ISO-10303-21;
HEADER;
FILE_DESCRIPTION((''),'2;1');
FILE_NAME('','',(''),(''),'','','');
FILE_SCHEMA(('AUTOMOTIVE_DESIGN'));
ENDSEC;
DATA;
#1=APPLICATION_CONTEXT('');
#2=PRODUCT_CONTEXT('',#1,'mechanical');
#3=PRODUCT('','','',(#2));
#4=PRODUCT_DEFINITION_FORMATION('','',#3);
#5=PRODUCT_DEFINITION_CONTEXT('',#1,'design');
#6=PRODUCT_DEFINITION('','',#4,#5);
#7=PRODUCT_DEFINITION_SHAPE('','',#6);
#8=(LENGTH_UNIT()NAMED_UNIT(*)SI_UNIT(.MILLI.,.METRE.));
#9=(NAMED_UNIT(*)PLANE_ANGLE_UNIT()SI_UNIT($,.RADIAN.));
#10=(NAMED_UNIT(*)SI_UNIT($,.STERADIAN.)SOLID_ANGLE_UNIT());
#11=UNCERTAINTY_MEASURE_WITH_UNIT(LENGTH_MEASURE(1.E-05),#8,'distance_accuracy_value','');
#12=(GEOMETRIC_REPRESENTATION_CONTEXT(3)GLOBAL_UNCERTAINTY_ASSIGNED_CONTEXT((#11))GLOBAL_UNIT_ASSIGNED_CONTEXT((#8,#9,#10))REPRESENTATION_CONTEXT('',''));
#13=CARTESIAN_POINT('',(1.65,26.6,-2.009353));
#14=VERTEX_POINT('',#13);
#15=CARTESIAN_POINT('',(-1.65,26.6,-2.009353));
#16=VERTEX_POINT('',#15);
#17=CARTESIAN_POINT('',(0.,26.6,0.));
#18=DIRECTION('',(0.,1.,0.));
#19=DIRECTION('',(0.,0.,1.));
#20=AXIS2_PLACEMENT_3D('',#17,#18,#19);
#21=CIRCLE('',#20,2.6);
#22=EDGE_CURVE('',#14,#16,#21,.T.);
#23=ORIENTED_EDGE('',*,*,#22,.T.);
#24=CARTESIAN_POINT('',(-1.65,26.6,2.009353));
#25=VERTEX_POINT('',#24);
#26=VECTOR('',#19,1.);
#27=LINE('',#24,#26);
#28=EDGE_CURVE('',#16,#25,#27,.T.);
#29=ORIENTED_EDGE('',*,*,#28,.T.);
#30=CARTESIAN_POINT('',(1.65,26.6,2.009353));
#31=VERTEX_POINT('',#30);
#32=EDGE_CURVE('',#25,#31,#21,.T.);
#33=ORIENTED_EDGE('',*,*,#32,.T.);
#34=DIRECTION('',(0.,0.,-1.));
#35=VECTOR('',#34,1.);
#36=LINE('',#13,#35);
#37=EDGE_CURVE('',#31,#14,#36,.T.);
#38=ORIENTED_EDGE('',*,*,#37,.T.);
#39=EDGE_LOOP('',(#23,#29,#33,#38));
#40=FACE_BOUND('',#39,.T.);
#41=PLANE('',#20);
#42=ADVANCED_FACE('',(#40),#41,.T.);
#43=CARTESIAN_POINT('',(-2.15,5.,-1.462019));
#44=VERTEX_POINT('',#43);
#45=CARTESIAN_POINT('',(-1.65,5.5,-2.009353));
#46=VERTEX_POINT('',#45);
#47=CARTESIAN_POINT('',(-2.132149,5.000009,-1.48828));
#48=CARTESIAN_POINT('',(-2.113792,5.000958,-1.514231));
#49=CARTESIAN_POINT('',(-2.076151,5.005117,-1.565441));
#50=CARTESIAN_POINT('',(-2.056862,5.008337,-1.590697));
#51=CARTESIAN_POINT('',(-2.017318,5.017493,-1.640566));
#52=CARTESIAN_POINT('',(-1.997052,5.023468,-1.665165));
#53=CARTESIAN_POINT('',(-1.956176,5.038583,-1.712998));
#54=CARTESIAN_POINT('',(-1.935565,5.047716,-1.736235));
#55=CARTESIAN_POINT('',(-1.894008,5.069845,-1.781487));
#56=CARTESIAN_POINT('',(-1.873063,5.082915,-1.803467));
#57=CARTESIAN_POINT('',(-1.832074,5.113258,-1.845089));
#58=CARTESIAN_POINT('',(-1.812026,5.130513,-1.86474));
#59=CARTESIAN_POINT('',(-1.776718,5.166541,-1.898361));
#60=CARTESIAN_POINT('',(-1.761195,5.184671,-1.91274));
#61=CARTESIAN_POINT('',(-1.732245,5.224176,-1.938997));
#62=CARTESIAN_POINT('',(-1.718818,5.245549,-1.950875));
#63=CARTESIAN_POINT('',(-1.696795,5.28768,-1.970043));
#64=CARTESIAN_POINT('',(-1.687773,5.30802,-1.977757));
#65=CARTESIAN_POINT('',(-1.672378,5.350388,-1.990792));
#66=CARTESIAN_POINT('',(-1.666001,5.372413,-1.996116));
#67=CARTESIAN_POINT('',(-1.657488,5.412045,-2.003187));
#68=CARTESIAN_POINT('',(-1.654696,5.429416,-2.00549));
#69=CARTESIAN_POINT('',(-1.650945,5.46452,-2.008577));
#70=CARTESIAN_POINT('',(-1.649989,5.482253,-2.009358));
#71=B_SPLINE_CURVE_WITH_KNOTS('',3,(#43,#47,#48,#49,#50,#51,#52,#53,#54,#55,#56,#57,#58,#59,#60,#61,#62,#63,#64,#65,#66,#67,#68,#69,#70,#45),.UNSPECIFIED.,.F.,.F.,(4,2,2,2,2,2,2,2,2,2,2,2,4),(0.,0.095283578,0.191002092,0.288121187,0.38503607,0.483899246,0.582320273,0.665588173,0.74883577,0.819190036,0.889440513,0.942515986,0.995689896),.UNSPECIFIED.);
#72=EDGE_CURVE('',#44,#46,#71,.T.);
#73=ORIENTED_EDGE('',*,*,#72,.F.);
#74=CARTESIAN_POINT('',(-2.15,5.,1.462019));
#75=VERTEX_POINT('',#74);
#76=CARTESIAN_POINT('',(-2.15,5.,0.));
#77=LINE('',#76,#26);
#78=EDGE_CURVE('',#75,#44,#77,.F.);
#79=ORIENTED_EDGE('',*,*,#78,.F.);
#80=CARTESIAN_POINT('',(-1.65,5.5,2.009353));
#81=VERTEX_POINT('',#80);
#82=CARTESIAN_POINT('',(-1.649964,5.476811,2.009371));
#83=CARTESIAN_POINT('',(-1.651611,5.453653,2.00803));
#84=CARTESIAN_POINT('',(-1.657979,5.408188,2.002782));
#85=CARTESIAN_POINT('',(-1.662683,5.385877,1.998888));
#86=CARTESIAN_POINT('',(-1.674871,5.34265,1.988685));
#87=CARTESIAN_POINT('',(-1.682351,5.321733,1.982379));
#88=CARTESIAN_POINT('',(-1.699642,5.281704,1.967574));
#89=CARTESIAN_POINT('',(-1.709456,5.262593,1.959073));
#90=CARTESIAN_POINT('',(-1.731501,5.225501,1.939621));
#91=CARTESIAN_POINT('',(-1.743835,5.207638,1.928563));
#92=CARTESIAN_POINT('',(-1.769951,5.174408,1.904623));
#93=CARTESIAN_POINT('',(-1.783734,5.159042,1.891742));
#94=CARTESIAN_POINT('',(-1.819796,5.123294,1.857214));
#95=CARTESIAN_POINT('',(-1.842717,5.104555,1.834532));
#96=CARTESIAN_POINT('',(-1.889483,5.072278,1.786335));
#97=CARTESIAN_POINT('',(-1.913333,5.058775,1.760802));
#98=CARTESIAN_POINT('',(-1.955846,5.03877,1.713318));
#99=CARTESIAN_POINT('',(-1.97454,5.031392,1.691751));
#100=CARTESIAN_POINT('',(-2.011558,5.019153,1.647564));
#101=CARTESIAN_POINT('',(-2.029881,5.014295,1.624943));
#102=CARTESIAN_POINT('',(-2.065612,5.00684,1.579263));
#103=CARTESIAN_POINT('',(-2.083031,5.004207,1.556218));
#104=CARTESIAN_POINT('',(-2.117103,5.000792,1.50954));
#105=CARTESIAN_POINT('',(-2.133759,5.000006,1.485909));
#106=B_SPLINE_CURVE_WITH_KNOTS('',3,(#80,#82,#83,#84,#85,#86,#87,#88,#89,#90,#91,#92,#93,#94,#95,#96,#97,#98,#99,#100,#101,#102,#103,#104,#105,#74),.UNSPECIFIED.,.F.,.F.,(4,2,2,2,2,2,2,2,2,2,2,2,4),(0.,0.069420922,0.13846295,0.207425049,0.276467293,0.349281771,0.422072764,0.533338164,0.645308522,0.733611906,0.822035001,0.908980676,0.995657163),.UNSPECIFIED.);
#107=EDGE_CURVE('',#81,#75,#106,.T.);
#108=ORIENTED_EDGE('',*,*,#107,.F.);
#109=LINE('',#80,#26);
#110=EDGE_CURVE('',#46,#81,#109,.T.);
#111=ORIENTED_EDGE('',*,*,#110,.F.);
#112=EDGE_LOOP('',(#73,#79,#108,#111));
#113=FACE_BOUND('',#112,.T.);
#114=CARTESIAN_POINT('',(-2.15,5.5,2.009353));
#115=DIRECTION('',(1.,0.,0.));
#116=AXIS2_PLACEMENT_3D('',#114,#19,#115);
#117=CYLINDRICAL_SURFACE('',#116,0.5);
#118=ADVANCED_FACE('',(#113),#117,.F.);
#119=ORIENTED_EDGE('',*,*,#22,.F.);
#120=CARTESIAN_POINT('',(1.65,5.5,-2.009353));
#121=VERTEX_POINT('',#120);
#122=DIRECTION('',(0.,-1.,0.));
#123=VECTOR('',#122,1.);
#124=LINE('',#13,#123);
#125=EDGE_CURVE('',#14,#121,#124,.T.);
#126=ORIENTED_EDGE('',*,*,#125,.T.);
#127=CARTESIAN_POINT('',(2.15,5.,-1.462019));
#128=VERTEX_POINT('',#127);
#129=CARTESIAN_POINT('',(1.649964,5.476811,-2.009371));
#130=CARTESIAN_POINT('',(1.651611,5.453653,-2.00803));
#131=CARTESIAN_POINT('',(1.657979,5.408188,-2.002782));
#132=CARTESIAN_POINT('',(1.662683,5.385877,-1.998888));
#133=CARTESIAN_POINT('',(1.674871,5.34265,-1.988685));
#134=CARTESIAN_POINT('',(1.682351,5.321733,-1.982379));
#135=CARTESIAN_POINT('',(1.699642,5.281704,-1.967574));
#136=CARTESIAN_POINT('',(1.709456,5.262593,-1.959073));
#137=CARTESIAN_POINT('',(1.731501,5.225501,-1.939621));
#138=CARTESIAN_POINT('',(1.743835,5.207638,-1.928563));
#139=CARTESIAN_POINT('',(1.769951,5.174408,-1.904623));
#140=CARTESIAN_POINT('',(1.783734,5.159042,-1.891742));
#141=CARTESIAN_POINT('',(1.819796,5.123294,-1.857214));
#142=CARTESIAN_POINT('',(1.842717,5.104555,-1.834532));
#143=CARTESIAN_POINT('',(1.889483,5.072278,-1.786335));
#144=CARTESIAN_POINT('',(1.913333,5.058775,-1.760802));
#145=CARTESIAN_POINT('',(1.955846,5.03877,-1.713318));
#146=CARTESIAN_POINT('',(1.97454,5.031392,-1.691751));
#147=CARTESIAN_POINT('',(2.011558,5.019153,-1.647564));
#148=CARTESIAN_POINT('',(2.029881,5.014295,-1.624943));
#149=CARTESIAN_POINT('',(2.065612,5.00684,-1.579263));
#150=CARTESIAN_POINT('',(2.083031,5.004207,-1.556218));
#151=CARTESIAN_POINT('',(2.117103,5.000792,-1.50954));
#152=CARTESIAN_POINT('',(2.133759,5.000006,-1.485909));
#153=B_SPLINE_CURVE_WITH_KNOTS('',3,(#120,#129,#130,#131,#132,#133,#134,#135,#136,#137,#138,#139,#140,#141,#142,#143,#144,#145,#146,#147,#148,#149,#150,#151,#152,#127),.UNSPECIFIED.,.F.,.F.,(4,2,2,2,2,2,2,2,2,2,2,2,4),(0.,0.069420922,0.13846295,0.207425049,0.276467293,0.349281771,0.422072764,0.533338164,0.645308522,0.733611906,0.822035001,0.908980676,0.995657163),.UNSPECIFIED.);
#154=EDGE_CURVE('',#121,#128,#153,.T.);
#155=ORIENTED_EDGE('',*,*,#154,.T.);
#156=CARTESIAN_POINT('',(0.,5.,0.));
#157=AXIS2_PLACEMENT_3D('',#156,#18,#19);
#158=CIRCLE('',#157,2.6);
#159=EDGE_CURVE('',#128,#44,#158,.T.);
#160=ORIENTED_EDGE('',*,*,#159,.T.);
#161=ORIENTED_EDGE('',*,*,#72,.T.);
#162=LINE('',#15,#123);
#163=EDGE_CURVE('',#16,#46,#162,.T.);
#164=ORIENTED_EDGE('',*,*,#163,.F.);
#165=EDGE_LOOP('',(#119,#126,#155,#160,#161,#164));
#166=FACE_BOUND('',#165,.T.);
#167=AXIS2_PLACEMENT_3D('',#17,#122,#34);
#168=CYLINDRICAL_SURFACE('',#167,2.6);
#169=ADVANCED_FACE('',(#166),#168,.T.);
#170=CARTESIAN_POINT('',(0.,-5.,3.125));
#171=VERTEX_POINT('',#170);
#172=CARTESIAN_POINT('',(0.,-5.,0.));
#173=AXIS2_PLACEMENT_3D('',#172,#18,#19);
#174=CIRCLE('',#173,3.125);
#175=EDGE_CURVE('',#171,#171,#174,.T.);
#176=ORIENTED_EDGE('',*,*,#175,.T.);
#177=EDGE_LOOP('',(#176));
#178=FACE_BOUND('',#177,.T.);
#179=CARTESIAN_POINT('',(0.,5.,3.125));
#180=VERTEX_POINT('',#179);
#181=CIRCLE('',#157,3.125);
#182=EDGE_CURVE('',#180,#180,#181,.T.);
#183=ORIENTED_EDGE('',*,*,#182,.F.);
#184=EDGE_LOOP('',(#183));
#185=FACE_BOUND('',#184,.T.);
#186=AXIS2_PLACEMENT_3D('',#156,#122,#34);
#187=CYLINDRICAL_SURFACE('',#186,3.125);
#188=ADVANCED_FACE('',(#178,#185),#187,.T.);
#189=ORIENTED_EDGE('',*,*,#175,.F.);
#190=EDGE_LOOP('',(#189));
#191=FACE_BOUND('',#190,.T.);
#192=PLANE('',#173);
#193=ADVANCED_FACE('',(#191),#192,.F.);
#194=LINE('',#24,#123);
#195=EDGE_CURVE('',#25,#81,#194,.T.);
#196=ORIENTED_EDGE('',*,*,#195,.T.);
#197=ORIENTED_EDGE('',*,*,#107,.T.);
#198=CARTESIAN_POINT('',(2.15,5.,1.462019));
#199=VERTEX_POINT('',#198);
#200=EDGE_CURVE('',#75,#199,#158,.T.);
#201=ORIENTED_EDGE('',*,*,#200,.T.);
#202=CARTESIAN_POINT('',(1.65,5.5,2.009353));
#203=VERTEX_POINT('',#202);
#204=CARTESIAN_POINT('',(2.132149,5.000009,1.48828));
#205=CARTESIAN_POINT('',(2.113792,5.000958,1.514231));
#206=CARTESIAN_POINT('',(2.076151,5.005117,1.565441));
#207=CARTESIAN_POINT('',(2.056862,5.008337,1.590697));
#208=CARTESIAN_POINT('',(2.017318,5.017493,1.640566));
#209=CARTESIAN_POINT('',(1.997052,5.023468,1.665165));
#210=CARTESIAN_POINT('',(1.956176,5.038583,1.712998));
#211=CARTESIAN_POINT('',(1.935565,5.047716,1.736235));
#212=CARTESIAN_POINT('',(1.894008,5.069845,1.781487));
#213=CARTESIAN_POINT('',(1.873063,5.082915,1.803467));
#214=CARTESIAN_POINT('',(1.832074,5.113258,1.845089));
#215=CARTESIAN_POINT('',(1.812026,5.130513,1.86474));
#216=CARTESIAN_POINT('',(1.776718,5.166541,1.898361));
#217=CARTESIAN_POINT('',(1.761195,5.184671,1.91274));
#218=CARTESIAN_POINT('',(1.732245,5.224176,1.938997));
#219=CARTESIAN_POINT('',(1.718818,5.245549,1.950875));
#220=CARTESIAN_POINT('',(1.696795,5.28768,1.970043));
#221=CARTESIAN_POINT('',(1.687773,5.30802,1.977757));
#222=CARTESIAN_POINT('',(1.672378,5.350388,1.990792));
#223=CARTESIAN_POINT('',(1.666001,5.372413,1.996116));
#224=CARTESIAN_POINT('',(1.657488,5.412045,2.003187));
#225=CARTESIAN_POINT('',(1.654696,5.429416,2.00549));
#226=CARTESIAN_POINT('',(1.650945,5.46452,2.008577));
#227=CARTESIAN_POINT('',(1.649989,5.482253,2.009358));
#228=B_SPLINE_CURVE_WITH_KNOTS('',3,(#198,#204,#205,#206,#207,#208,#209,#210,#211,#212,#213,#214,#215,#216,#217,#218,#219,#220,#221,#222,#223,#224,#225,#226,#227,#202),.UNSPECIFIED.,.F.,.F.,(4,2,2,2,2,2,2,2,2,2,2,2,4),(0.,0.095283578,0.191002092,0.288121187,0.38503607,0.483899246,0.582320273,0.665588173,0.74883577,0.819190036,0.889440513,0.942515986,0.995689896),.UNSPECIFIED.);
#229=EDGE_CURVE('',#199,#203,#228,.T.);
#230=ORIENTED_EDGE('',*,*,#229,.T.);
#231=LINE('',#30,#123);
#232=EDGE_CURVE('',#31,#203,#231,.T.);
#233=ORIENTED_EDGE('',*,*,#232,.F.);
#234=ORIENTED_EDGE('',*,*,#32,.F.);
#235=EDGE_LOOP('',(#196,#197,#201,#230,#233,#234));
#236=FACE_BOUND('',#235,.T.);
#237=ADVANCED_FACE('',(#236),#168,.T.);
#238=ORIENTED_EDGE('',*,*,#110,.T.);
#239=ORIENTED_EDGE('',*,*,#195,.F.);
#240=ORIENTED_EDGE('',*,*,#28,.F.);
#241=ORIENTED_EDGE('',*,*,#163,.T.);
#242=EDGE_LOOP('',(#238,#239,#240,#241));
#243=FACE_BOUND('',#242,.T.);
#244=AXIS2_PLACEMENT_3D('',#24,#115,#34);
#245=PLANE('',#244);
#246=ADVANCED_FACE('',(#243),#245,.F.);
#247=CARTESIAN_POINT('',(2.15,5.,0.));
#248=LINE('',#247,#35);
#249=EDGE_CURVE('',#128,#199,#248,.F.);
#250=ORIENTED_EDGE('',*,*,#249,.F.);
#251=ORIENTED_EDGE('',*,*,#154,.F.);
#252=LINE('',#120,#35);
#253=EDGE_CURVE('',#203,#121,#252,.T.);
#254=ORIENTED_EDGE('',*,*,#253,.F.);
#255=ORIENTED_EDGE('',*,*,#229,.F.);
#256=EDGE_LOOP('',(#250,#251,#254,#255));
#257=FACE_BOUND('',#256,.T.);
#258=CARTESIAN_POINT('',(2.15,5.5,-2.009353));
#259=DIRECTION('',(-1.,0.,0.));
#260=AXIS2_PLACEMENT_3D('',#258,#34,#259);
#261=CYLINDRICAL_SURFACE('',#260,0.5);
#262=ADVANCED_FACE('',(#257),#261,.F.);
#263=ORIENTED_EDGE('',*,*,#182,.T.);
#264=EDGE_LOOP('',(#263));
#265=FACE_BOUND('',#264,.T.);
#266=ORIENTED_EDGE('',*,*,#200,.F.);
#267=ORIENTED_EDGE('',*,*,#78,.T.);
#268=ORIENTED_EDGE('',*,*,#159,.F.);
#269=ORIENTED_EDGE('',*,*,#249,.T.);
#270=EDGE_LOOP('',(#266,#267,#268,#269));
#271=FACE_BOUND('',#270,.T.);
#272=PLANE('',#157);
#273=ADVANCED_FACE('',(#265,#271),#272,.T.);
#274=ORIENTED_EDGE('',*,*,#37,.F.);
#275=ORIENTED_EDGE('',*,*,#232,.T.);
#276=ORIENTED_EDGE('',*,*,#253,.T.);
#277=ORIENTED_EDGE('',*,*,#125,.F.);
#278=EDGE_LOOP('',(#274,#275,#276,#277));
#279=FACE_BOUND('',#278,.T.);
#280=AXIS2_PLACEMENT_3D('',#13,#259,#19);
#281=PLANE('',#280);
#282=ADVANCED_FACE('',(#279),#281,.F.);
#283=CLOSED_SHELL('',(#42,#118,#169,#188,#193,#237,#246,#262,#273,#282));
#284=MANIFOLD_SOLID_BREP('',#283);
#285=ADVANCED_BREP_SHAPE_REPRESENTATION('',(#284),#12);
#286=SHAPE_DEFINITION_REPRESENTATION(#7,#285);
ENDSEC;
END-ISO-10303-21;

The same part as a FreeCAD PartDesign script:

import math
import FreeCAD as App
import Part
import Sketcher
Q = App.Units.Quantity


def edges_at(feature, points):
    """Names of the edges that pass closest to the given points."""
    edges = feature.Shape.Edges
    near = lambda p: min(range(len(edges)), key=lambda i: edges[i].distToShape(Part.Vertex(*p))[0])
    return sorted({f"Edge{near(p) + 1}" for p in points})

doc = App.newDocument("Part")
body = doc.addObject("PartDesign::Body", "Body")

# Sketch on XZ plane
sketch1 = doc.addObject("Sketcher::SketchObject", "Sketch")
body.addObject(sketch1)
sketch1.AttachmentSupport = (doc.XZ_Plane, [""])
sketch1.MapMode = "FlatFace"
sketch1.addGeometry(Part.Circle(App.Vector(0, 0, 0), App.Vector(0, 0, 1), 3.1), False)
sketch1.addConstraint([
    Sketcher.Constraint("Coincident", 0, 3, -1, 1),
    Sketcher.Constraint("Diameter", 0, Q("6.25 mm")),
])
pad1 = doc.addObject("PartDesign::Pad", "Pad")
body.addObject(pad1)
pad1.Profile = sketch1
pad1.Length = 10
pad1.Midplane = True

# Sketch on XZ plane
sketch2 = doc.addObject("Sketcher::SketchObject", "Sketch001")
body.addObject(sketch2)
sketch2.AttachmentSupport = (doc.XZ_Plane, [""])
sketch2.MapMode = "FlatFace"
sketch2.AttachmentOffset = App.Placement(App.Vector(0, 0, -5), App.Rotation())
sketch2.addGeometry([
    Part.LineSegment(App.Vector(-1.6, -2, 0), App.Vector(-1.6, 2, 0)),
    Part.ArcOfCircle(Part.Circle(App.Vector(0, 0, 0), App.Vector(0, 0, 1), 2.6), math.radians(51), math.radians(129)),
    Part.LineSegment(App.Vector(1.6, 2, 0), App.Vector(1.6, -2, 0)),
    Part.ArcOfCircle(Part.Circle(App.Vector(0, 0, 0), App.Vector(0, 0, 1), 2.6), math.radians(-129), math.radians(-51)),
], False)
sketch2.addConstraint([
    Sketcher.Constraint("Coincident", 0, 2, 1, 2),
    Sketcher.Constraint("Coincident", 1, 1, 2, 1),
    Sketcher.Constraint("Coincident", 2, 2, 3, 2),
    Sketcher.Constraint("Coincident", 3, 1, 0, 1),
    Sketcher.Constraint("Vertical", 0),
    Sketcher.Constraint("Vertical", 2),
    Sketcher.Constraint("Coincident", 1, 3, -1, 1),
    Sketcher.Constraint("Coincident", 3, 3, -1, 1),
    Sketcher.Constraint("Equal", 1, 3),
    Sketcher.Constraint("Horizontal", 0, 2, 1, 1),
    Sketcher.Constraint("Radius", 1, Q("2.6 mm")),
    Sketcher.Constraint("DistanceX", 0, 2, 1, 1, Q("3.3 mm")),
])
pad2 = doc.addObject("PartDesign::Pad", "Pad001")
body.addObject(pad2)
pad2.Profile = sketch2
pad2.Length = 21.6
pad2.Reversed = True
doc.recompute()

fillet = doc.addObject("PartDesign::Fillet", "Fillet")
body.addObject(fillet)
fillet.Base = (pad2, edges_at(pad2, [(1.65, 5, 0), (-1.65, 5, 0)]))
fillet.Radius = 0.5

doc.recompute()
